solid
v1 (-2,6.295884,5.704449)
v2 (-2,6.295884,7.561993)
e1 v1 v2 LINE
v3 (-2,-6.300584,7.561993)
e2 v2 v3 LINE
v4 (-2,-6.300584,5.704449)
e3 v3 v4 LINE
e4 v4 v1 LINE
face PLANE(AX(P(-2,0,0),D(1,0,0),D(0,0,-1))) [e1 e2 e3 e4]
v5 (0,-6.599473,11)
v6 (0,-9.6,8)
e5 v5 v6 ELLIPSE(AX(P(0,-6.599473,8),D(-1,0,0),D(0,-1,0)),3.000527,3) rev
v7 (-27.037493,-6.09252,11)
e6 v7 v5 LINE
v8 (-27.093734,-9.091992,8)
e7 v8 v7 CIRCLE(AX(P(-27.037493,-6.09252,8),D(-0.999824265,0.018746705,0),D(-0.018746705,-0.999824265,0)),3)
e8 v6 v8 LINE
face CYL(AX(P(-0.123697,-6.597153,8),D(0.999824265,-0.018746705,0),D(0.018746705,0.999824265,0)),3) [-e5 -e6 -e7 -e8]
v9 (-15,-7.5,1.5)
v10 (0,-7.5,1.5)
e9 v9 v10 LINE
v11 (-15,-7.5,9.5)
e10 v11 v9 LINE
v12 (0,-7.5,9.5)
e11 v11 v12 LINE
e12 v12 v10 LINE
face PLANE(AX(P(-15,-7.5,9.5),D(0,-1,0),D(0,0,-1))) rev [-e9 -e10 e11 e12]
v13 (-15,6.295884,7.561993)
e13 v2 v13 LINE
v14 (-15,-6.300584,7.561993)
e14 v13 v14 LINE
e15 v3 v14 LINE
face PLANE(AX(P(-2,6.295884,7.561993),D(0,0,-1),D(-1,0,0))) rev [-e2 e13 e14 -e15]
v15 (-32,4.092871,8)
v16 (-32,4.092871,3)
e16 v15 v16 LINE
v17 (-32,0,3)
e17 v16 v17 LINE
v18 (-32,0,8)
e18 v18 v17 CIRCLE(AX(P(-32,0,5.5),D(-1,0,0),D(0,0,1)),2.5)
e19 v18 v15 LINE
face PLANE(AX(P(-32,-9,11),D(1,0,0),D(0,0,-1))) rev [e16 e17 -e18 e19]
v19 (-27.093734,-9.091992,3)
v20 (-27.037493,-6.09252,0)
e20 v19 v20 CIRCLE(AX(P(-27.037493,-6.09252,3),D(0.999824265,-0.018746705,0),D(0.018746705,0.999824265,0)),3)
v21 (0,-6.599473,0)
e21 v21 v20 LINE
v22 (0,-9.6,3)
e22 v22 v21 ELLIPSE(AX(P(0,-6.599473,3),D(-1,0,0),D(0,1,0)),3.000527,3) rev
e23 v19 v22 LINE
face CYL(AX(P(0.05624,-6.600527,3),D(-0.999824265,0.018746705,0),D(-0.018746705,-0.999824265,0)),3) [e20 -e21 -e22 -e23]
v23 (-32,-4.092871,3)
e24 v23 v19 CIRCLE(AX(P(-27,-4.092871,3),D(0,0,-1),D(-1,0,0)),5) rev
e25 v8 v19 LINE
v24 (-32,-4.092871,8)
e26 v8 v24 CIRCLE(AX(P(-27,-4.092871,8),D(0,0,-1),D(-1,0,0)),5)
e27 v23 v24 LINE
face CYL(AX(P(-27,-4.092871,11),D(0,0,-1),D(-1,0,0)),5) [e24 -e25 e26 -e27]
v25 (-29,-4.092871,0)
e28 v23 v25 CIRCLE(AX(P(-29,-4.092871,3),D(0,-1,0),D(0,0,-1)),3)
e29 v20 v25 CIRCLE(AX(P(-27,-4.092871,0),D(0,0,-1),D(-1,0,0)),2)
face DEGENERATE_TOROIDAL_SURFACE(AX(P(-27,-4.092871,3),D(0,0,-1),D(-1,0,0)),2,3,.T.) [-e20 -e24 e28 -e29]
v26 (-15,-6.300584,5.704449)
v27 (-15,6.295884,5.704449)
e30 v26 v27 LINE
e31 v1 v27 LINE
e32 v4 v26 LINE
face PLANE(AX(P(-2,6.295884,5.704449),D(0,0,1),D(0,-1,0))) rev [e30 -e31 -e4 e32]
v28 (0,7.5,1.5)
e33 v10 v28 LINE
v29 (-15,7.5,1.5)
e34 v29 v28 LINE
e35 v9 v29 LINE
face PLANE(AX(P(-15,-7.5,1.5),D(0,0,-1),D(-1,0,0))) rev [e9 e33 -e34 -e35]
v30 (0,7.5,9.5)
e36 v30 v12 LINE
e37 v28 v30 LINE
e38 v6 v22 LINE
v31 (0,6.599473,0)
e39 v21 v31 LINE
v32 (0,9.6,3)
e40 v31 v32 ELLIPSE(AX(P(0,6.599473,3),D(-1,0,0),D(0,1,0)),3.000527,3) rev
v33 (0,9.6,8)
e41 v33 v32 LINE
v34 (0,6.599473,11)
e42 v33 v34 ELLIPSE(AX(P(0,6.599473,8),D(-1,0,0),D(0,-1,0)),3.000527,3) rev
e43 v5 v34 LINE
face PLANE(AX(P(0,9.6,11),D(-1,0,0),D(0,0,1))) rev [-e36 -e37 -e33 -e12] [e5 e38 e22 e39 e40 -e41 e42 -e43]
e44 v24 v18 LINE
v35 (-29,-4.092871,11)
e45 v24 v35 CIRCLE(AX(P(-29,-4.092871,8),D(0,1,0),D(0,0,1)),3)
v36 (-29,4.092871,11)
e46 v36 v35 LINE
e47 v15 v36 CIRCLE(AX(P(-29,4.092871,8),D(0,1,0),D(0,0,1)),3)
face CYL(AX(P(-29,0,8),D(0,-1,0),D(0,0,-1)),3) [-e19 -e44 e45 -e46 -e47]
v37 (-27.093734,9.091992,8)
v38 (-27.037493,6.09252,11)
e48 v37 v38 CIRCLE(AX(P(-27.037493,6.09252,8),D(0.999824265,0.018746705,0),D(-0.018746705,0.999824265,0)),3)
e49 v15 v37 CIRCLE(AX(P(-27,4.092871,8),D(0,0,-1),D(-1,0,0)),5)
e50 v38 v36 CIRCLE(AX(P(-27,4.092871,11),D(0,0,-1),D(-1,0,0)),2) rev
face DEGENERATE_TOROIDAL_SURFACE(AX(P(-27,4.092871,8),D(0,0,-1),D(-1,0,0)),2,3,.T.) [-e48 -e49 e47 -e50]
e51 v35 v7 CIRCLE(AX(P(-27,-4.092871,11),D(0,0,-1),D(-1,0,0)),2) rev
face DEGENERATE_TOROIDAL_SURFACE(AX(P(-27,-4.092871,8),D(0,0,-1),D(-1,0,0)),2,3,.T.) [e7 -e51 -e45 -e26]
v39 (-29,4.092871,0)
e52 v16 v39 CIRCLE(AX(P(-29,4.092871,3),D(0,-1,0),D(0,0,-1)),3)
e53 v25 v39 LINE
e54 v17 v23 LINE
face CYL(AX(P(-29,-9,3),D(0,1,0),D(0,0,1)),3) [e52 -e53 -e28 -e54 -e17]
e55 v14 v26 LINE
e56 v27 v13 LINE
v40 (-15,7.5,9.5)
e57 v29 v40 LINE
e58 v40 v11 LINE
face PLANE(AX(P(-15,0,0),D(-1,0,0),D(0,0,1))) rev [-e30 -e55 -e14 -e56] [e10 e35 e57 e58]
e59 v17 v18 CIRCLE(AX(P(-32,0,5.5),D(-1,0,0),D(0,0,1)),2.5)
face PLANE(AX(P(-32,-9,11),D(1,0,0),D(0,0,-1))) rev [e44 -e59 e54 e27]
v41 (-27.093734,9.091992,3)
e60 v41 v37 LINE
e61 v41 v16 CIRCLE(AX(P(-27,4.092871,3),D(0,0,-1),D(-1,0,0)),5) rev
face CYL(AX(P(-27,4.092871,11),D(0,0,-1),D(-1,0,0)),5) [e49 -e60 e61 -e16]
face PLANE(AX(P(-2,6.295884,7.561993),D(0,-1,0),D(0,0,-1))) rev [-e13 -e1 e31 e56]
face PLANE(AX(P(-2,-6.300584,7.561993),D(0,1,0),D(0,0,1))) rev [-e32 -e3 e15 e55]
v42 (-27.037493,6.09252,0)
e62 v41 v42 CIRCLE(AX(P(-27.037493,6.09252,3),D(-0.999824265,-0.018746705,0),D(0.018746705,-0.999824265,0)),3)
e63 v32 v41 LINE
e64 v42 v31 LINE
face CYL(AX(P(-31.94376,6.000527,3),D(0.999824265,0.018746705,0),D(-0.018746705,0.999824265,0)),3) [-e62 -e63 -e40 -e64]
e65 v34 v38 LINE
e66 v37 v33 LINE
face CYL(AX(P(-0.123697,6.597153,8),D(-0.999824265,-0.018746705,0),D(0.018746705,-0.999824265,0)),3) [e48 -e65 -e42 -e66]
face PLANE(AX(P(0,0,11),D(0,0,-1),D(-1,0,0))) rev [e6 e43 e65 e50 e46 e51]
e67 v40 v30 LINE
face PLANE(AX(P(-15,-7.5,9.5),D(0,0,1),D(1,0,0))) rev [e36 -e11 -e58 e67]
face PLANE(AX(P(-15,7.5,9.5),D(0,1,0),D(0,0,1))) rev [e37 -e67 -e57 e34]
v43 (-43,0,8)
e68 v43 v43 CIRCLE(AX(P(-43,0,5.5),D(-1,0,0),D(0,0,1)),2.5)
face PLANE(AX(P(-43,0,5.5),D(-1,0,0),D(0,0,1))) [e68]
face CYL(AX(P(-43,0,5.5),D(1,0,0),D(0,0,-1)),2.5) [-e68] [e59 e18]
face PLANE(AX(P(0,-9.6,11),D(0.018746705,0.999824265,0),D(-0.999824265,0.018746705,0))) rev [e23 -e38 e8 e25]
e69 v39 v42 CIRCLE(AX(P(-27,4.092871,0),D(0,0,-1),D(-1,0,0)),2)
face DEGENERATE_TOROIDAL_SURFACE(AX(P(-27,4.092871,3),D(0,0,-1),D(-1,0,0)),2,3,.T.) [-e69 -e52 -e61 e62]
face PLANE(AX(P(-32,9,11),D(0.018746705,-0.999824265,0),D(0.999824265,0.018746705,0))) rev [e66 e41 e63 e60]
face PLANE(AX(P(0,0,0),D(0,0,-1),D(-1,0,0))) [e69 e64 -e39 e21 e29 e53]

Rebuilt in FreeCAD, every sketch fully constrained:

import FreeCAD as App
import Part
import Sketcher
from FreeCAD import Vector
Q = App.Units.Quantity


def edges_at(feature, points):
    """Names of the edges that pass closest to the given points."""
    edges = feature.Shape.Edges
    near = lambda p: min(range(len(edges)), key=lambda i: edges[i].distToShape(Part.Vertex(*p))[0])
    return sorted({f"Edge{near(p) + 1}" for p in points})

doc = App.newDocument("Part")
params = doc.addObject("Spreadsheet::Sheet", "Params")
for row, (alias, value) in enumerate([
    ("sketch1_height", "18 mm"),
    ("sketch1_height2", "19.2 mm"),
    ("pad1_length", "11 mm"),
    ("fillet_radius", "5 mm"),
    ("fillet2_radius", "3 mm"),
    ("sketch2_diameter", "5 mm"),
    ("pad2_length", "11 mm"),
    ("sketch3_width", "15 mm"),
    ("sketch3_height", "8 mm"),
    ("pocket1_length", "15 mm"),
    ("pad3_length", "13 mm"),
], start=1):
    params.set(f"A{row}", alias)
    params.set(f"B{row}", "=" + value)
    params.setAlias(f"B{row}", alias)

body = doc.addObject("PartDesign::Body", "Body")

# Sketch on XY plane
sketch1 = body.newObject("Sketcher::SketchObject", "Sketch")
sketch1.AttachmentSupport = (doc.getObject("XY_Plane"), [""])
sketch1.MapMode = "FlatFace"
sketch1.addGeometry(Part.LineSegment(Vector(0, -10, 0), Vector(0, 10, 0)), False)
sketch1.addGeometry(Part.LineSegment(Vector(0, 10, 0), Vector(-32, 9, 0)), False)
sketch1.addGeometry(Part.LineSegment(Vector(-32, 9, 0), Vector(-32, -9, 0)), False)
sketch1.addGeometry(Part.LineSegment(Vector(-32, -9, 0), Vector(0, -10, 0)), False)
sketch1.addConstraint(Sketcher.Constraint("Coincident", 0, 2, 1, 1))
sketch1.addConstraint(Sketcher.Constraint("Coincident", 1, 2, 2, 1))
sketch1.addConstraint(Sketcher.Constraint("Coincident", 2, 2, 3, 1))
sketch1.addConstraint(Sketcher.Constraint("Coincident", 3, 2, 0, 1))
sketch1.addConstraint(Sketcher.Constraint("Vertical", 0))
sketch1.addConstraint(Sketcher.Constraint("Vertical", 2))
sketch1.addConstraint(Sketcher.Constraint("Symmetric", 0, 2, 3, 2, -1, 1))
sketch1.addConstraint(Sketcher.Constraint("Equal", 1, 3))
sketch1.addConstraint(Sketcher.Constraint("DistanceY", 2, 2, 2, 1, Q("18 mm")))
sketch1.addConstraint(Sketcher.Constraint("DistanceY", 0, 1, 0, 2, Q("19.2 mm")))
sketch1.addConstraint(Sketcher.Constraint("DistanceX", 1, 2, -1, 1, Q("32 mm")))
sketch1.setExpression("Constraints[8]", "Params.sketch1_height")
sketch1.setExpression("Constraints[9]", "Params.sketch1_height2")
pad1 = body.newObject("PartDesign::Pad", "Pad")
pad1.Profile = sketch1
pad1.setExpression("Length", "Params.pad1_length")
doc.recompute()

fillet = body.newObject("PartDesign::Fillet", "Fillet")
fillet.Base = (pad1, edges_at(pad1, [(-32, -9, 5.5), (-32, 9, 5.5)]))
fillet.setExpression("Radius", "Params.fillet_radius")
doc.recompute()

fillet2 = body.newObject("PartDesign::Fillet", "Fillet001")
fillet2.Base = (fillet, edges_at(fillet, [
    (-13.547, 9.346, 11),
    (-13.547, -9.346, 0),
    (-13.547, -9.346, 11),
    (-32, 0, 0),
    (-30.569, 7.595, 0),
    (-30.569, -7.595, 0),
    (-32, 0, 11),
    (-30.569, 7.595, 11),
    (-30.569, -7.595, 11),
    (-13.547, 9.346, 0),
]))
fillet2.setExpression("Radius", "Params.fillet2_radius")

# Sketch on YZ plane
sketch2 = body.newObject("Sketcher::SketchObject", "Sketch001")
sketch2.AttachmentSupport = (doc.getObject("YZ_Plane"), [""])
sketch2.MapMode = "FlatFace"
sketch2.AttachmentOffset = App.Placement(Vector(0, 0, -32), App.Rotation())
sketch2.addGeometry(Part.Circle(Vector(0, 5.5, 0), Vector(0, 0, 1), 2.5), False)
sketch2.addConstraint(Sketcher.Constraint("PointOnObject", 0, 3, -2))
sketch2.addConstraint(Sketcher.Constraint("Diameter", 0, Q("5 mm")))
sketch2.addConstraint(Sketcher.Constraint("DistanceY", -1, 1, 0, 3, Q("5.5 mm")))
sketch2.setExpression("Constraints[1]", "Params.sketch2_diameter")
pad2 = body.newObject("PartDesign::Pad", "Pad001")
pad2.Profile = sketch2
pad2.setExpression("Length", "Params.pad2_length")
pad2.Reversed = True

# Sketch on YZ plane
sketch3 = body.newObject("Sketcher::SketchObject", "Sketch002")
sketch3.AttachmentSupport = (doc.getObject("YZ_Plane"), [""])
sketch3.MapMode = "FlatFace"
sketch3.addGeometry(Part.LineSegment(Vector(8, 10, 0), Vector(-8, 10, 0)), False)
sketch3.addGeometry(Part.LineSegment(Vector(-8, 10, 0), Vector(-8, 2, 0)), False)
sketch3.addGeometry(Part.LineSegment(Vector(-8, 2, 0), Vector(8, 2, 0)), False)
sketch3.addGeometry(Part.LineSegment(Vector(8, 2, 0), Vector(8, 10, 0)), False)
sketch3.addConstraint(Sketcher.Constraint("Coincident", 0, 2, 1, 1))
sketch3.addConstraint(Sketcher.Constraint("Coincident", 1, 2, 2, 1))
sketch3.addConstraint(Sketcher.Constraint("Coincident", 2, 2, 3, 1))
sketch3.addConstraint(Sketcher.Constraint("Coincident", 3, 2, 0, 1))
sketch3.addConstraint(Sketcher.Constraint("Horizontal", 0))
sketch3.addConstraint(Sketcher.Constraint("Vertical", 1))
sketch3.addConstraint(Sketcher.Constraint("Horizontal", 2))
sketch3.addConstraint(Sketcher.Constraint("Vertical", 3))
sketch3.addConstraint(Sketcher.Constraint("DistanceX", 0, 2, 0, 1, Q("15 mm")))
sketch3.addConstraint(Sketcher.Constraint("DistanceY", 1, 2, 1, 1, Q("8 mm")))
sketch3.addConstraint(Sketcher.Constraint("DistanceX", 0, 2, -1, 1, Q("7.5 mm")))
sketch3.addConstraint(Sketcher.Constraint("DistanceY", -1, 1, 0, 2, Q("9.5 mm")))
sketch3.setExpression("Constraints[8]", "Params.sketch3_width")
sketch3.setExpression("Constraints[9]", "Params.sketch3_height")
pocket1 = body.newObject("PartDesign::Pocket", "Pocket")
pocket1.Profile = sketch3
pocket1.setExpression("Length", "Params.pocket1_length")

# Sketch on YZ plane
sketch4 = body.newObject("Sketcher::SketchObject", "Sketch003")
sketch4.AttachmentSupport = (doc.getObject("YZ_Plane"), [""])
sketch4.MapMode = "FlatFace"
sketch4.AttachmentOffset = App.Placement(Vector(0, 0, -15), App.Rotation())
sketch4.addGeometry(Part.LineSegment(Vector(6.3, 7.6, 0), Vector(-6.3, 7.6, 0)), False)
sketch4.addGeometry(Part.LineSegment(Vector(-6.3, 7.6, 0), Vector(-6.3, 5.7, 0)), False)
sketch4.addGeometry(Part.LineSegment(Vector(-6.3, 5.7, 0), Vector(6.3, 5.7, 0)), False)
sketch4.addGeometry(Part.LineSegment(Vector(6.3, 5.7, 0), Vector(6.3, 7.6, 0)), False)
sketch4.addConstraint(Sketcher.Constraint("Coincident", 0, 2, 1, 1))
sketch4.addConstraint(Sketcher.Constraint("Coincident", 1, 2, 2, 1))
sketch4.addConstraint(Sketcher.Constraint("Coincident", 2, 2, 3, 1))
sketch4.addConstraint(Sketcher.Constraint("Coincident", 3, 2, 0, 1))
sketch4.addConstraint(Sketcher.Constraint("Horizontal", 0))
sketch4.addConstraint(Sketcher.Constraint("Vertical", 1))
sketch4.addConstraint(Sketcher.Constraint("Horizontal", 2))
sketch4.addConstraint(Sketcher.Constraint("Vertical", 3))
sketch4.addConstraint(Sketcher.Constraint("DistanceX", 0, 2, 0, 1, Q("12.596469 mm")))
sketch4.addConstraint(Sketcher.Constraint("DistanceY", 1, 2, 1, 1, Q("1.857544 mm")))
sketch4.addConstraint(Sketcher.Constraint("DistanceY", -1, 1, 1, 2, Q("5.704449 mm")))
sketch4.addConstraint(Sketcher.Constraint("DistanceX", 0, 2, -1, 1, Q("6.300584 mm")))
pad3 = body.newObject("PartDesign::Pad", "Pad002")
pad3.Profile = sketch4
pad3.setExpression("Length", "Params.pad3_length")

doc.recompute()
